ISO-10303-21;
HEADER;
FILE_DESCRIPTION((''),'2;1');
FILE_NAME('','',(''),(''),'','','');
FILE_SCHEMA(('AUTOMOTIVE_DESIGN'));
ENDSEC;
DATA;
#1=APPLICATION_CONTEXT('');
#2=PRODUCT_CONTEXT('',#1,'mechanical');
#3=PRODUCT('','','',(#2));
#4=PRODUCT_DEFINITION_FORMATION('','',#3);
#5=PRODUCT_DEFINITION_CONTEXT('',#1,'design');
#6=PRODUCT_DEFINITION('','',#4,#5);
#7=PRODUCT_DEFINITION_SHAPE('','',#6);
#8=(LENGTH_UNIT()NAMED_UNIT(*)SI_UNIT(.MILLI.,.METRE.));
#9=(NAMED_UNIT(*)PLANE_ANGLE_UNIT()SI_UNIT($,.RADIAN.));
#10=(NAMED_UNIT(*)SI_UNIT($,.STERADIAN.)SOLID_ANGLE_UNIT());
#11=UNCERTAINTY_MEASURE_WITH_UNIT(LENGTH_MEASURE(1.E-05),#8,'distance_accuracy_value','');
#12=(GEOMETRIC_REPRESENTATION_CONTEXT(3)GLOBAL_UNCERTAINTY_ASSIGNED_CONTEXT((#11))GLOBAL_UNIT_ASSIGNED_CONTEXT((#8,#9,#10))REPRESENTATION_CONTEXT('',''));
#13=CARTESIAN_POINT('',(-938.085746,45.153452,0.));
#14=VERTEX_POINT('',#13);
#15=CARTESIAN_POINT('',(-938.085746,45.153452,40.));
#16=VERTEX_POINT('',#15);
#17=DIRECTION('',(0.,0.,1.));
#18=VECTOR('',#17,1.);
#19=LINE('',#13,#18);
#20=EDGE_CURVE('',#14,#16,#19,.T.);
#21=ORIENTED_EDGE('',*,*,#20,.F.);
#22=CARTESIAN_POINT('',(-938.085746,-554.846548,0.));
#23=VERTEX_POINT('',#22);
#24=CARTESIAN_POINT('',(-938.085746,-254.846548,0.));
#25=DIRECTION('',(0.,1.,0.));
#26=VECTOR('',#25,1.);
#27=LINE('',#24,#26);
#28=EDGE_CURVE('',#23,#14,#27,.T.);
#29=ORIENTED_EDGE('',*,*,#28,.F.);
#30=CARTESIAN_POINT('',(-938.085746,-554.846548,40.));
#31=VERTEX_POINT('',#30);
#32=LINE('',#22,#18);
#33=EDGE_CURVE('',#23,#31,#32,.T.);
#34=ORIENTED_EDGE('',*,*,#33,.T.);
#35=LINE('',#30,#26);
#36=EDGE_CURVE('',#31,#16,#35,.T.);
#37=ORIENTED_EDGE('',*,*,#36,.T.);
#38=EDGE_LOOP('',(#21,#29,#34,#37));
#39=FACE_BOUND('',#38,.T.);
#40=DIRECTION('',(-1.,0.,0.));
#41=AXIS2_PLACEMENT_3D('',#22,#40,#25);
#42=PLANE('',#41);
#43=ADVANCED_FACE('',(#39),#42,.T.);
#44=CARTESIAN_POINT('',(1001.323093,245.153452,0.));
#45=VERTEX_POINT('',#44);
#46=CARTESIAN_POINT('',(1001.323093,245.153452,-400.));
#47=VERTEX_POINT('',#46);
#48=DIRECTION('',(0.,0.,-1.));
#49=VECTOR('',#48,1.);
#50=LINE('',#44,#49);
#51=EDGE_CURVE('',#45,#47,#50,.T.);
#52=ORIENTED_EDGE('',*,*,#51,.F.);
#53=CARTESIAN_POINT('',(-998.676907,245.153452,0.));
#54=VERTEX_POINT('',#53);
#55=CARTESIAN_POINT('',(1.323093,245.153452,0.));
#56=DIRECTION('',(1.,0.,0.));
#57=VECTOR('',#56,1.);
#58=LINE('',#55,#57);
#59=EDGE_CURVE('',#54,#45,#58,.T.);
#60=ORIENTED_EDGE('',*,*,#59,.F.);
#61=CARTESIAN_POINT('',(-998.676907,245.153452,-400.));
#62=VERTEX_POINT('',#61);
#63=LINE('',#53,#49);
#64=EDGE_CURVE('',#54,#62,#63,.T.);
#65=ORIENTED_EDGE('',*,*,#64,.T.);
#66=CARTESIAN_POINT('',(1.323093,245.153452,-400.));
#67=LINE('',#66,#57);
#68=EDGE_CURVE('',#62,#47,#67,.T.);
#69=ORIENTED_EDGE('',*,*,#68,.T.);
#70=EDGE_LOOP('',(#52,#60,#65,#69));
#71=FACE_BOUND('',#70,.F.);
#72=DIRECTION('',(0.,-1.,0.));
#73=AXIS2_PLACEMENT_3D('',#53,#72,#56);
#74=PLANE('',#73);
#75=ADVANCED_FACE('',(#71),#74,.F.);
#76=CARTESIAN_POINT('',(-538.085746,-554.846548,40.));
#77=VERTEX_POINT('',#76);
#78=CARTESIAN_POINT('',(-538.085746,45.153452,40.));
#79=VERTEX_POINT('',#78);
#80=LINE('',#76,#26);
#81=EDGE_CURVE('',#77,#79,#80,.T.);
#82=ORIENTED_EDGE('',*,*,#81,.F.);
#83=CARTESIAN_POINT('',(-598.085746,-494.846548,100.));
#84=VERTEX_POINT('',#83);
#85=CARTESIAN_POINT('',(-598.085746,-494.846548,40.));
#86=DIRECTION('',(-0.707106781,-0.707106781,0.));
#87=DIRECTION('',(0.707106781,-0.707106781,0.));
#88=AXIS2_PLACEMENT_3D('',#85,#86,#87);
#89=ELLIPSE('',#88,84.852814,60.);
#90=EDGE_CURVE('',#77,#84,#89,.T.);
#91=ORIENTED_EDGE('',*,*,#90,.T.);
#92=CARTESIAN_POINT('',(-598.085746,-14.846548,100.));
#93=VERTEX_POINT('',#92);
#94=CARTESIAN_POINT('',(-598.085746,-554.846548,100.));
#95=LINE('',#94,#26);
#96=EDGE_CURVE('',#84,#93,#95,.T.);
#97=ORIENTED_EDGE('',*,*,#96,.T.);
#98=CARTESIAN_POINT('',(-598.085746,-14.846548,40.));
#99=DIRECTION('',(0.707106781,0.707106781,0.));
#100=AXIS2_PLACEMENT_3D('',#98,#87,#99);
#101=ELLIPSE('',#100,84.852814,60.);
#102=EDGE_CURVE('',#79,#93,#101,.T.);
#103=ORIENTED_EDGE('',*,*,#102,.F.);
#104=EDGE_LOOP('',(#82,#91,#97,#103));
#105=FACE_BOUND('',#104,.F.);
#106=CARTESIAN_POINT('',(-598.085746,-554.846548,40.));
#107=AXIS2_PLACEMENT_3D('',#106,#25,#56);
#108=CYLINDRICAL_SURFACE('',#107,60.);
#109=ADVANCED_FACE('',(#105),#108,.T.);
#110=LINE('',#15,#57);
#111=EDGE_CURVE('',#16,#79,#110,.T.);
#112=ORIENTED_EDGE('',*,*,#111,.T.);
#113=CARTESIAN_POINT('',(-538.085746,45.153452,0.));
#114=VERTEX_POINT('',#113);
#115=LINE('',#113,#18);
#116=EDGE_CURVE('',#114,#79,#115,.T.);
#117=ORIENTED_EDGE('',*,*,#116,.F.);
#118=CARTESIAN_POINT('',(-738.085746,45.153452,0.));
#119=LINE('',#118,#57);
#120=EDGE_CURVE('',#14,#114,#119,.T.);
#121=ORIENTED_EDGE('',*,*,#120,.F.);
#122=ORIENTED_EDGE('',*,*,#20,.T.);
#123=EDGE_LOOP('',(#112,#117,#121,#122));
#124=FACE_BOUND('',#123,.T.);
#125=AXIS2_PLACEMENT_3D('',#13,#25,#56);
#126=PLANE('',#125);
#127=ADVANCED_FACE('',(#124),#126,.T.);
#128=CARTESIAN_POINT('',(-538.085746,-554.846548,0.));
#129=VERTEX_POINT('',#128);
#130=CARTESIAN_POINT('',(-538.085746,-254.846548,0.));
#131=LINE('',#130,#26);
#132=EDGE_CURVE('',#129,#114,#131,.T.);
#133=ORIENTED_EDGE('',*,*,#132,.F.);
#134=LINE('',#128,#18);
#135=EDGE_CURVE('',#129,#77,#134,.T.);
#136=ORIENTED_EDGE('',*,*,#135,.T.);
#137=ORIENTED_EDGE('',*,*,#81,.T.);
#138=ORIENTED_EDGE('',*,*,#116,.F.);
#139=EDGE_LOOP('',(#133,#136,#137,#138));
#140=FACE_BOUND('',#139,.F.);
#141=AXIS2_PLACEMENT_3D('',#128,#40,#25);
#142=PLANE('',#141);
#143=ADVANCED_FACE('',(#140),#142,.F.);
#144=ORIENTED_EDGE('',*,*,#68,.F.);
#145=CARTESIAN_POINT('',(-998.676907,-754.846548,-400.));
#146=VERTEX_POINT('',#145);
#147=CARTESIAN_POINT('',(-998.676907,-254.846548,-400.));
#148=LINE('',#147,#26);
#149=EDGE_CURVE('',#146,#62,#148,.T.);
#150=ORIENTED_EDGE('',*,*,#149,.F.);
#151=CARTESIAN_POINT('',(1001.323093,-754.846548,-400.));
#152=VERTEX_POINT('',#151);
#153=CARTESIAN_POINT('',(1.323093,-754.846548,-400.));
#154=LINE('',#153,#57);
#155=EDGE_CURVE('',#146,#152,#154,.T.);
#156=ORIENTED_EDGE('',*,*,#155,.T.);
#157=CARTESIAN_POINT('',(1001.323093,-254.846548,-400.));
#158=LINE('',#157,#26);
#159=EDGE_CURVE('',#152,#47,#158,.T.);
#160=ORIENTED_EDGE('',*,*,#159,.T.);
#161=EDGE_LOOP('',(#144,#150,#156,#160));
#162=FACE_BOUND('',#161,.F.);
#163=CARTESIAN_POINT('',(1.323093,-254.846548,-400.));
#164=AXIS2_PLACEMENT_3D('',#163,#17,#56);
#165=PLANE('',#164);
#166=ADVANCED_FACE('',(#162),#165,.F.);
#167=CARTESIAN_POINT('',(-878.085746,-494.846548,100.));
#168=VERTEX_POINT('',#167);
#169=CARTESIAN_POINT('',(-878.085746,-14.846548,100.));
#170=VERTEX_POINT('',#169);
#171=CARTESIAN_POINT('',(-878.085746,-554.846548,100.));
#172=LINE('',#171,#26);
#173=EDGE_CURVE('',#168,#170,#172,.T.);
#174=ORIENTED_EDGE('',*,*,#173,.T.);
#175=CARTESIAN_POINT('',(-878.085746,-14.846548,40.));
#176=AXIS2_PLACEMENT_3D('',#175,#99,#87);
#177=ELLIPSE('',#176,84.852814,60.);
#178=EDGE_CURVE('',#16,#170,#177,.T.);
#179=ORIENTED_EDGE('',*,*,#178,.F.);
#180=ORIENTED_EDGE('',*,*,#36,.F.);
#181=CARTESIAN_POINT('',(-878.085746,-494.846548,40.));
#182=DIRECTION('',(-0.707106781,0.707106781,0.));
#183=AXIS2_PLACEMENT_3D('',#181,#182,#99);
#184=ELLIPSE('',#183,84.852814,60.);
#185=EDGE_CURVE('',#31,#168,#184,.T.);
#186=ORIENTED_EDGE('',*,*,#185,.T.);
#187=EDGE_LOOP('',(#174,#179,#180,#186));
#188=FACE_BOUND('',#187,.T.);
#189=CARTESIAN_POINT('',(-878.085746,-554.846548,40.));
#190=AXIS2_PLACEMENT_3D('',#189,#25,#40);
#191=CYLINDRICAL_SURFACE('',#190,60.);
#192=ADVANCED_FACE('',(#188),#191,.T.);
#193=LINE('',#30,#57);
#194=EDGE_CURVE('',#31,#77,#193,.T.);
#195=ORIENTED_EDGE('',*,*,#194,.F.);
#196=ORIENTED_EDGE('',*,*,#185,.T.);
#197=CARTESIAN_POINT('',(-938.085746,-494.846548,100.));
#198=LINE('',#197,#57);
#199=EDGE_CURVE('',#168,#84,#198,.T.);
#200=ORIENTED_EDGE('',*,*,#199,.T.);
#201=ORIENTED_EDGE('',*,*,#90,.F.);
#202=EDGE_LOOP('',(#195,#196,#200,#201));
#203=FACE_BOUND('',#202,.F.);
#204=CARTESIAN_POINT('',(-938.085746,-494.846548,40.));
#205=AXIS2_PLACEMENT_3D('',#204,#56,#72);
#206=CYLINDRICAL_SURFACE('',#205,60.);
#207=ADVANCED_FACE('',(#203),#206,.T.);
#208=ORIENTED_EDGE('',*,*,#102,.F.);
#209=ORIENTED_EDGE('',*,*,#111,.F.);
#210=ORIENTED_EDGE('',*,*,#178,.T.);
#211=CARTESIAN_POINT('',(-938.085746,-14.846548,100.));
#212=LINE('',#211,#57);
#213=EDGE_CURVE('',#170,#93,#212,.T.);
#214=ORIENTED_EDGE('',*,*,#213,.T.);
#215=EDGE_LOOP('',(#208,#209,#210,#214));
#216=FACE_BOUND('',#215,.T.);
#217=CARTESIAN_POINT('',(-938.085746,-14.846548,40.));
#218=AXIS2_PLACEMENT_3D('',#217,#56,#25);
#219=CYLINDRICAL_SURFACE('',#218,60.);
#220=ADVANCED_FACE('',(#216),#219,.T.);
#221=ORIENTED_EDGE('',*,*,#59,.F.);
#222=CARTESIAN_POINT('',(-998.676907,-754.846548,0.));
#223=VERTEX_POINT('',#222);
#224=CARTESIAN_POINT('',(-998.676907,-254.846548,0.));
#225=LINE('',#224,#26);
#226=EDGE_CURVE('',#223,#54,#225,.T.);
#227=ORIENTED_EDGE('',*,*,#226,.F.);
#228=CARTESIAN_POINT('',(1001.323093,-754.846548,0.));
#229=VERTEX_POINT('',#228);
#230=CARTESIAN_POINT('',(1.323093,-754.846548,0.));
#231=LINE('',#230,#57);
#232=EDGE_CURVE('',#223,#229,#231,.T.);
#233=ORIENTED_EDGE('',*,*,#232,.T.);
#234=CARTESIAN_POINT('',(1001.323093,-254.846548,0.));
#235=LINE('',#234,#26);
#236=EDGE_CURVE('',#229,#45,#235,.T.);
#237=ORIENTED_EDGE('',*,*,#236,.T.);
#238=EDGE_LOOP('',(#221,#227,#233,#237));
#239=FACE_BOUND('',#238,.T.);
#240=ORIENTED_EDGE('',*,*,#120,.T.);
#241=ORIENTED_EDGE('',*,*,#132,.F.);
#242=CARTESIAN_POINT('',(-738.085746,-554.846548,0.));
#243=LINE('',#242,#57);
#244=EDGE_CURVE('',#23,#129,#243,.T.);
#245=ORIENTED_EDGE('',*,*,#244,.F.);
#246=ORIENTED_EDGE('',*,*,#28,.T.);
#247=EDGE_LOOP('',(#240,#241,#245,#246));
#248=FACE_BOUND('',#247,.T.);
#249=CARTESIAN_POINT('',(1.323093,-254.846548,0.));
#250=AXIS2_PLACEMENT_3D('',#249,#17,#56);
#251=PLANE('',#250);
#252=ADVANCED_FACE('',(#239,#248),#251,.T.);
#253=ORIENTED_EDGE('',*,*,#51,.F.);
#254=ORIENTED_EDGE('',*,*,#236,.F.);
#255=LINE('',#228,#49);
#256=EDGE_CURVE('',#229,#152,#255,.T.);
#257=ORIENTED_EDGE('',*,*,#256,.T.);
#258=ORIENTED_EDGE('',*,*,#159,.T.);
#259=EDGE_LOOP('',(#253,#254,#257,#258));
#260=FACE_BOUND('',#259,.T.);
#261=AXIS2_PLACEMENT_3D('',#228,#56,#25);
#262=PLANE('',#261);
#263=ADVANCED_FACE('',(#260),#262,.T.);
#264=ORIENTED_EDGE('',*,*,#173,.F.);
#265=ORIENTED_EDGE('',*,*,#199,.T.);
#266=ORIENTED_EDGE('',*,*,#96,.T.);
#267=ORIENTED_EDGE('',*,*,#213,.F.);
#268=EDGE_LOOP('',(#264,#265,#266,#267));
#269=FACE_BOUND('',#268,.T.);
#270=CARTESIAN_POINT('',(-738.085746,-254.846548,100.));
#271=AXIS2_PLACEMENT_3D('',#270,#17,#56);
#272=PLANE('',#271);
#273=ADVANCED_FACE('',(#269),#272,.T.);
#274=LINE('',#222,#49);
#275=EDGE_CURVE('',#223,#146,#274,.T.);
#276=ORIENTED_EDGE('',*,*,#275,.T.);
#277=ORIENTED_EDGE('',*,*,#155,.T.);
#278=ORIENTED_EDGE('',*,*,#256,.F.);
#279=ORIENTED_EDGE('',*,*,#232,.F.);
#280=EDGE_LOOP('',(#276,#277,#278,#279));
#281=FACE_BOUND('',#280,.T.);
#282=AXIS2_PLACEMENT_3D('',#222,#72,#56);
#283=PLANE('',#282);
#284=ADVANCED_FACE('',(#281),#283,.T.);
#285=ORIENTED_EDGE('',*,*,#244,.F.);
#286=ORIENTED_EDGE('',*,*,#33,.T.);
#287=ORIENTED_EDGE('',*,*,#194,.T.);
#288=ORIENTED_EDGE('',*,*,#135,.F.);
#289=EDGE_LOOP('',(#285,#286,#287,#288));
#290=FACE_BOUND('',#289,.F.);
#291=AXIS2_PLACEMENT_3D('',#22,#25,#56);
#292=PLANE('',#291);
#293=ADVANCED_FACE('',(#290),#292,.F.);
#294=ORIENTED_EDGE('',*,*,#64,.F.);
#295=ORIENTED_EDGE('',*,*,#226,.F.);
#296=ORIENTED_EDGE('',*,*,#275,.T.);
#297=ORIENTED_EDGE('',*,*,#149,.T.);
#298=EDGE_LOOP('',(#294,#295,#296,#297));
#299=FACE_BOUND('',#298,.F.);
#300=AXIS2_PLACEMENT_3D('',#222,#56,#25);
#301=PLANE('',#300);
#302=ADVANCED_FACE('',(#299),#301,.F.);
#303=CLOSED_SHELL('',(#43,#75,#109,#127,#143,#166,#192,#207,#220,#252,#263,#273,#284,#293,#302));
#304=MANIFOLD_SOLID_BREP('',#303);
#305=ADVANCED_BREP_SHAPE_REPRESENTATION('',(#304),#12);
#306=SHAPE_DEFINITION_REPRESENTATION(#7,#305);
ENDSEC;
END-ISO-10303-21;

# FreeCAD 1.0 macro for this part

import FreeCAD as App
import Part
import Sketcher

V = App.Vector


def edges_at(feature, points):
    """Names of the edges that pass closest to the given points."""
    edges = feature.Shape.Edges
    near = lambda p: min(range(len(edges)), key=lambda i: edges[i].distToShape(Part.Vertex(*p))[0])
    return sorted({f"Edge{near(p) + 1}" for p in points})


def add_polygon(sketch, points):
    """Adds a closed chain of lines whose ends are joined by coincident constraints."""
    first, n = sketch.GeometryCount, len(points)
    for a, b in zip(points, points[1:] + points[:1]):
        sketch.addGeometry(Part.LineSegment(App.Vector(*a, 0), App.Vector(*b, 0)), False)
    for i in range(n):
        sketch.addConstraint(Sketcher.Constraint("Coincident", first + i, 2, first + (i + 1) % n, 1))

doc = App.newDocument("Part")
body = doc.addObject("PartDesign::Body", "Body")

# Sketch on XY plane
sketch1 = doc.addObject("Sketcher::SketchObject", "Sketch")
body.addObject(sketch1)
sketch1.AttachmentSupport = (doc.XY_Plane, [""])
sketch1.MapMode = "FlatFace"
add_polygon(sketch1, [(-999, 245), (-999, -755), (1001, -755), (1001, 245)])  # lines 0-3
sketch1.addConstraint(Sketcher.Constraint("Vertical", 0))
sketch1.addConstraint(Sketcher.Constraint("Horizontal", 1))
sketch1.addConstraint(Sketcher.Constraint("Vertical", 2))
sketch1.addConstraint(Sketcher.Constraint("Horizontal", 3))
sketch1.addConstraint(Sketcher.Constraint("DistanceX", 1, 1, 1, 2, 2000.0))
sketch1.addConstraint(Sketcher.Constraint("DistanceY", 0, 2, 0, 1, 1000.0))
sketch1.addConstraint(Sketcher.Constraint("DistanceY", 0, 2, -1, 1, 754.846548))
sketch1.addConstraint(Sketcher.Constraint("DistanceX", 0, 2, -1, 1, 998.676907))
pad1 = doc.addObject("PartDesign::Pad", "Pad")
body.addObject(pad1)
pad1.Profile = sketch1
pad1.Length = 400
pad1.Reversed = True

# Sketch on XY plane
sketch2 = doc.addObject("Sketcher::SketchObject", "Sketch001")
body.addObject(sketch2)
sketch2.AttachmentSupport = (doc.XY_Plane, [""])
sketch2.MapMode = "FlatFace"
add_polygon(sketch2, [(-938, 45), (-938, -555), (-538, -555), (-538, 45)])  # lines 0-3
sketch2.addConstraint(Sketcher.Constraint("Vertical", 0))
sketch2.addConstraint(Sketcher.Constraint("Horizontal", 1))
sketch2.addConstraint(Sketcher.Constraint("Vertical", 2))
sketch2.addConstraint(Sketcher.Constraint("Horizontal", 3))
sketch2.addConstraint(Sketcher.Constraint("DistanceX", 1, 1, 1, 2, 400.0))
sketch2.addConstraint(Sketcher.Constraint("DistanceY", 0, 2, 0, 1, 600.0))
sketch2.addConstraint(Sketcher.Constraint("DistanceY", 0, 2, -1, 1, 554.846548))
sketch2.addConstraint(Sketcher.Constraint("DistanceX", 0, 2, -1, 1, 938.085746))
pad2 = doc.addObject("PartDesign::Pad", "Pad001")
body.addObject(pad2)
pad2.Profile = sketch2
pad2.Length = 100
doc.recompute()

fillet = doc.addObject("PartDesign::Fillet", "Fillet")
body.addObject(fillet)
fillet.Base = (pad2, edges_at(pad2, [
    (-738.086, -554.847, 100),
    (-738.086, 45.153, 100),
    (-538.086, -254.847, 100),
    (-938.086, -254.847, 100),
]))
fillet.Radius = 60

doc.recompute()
